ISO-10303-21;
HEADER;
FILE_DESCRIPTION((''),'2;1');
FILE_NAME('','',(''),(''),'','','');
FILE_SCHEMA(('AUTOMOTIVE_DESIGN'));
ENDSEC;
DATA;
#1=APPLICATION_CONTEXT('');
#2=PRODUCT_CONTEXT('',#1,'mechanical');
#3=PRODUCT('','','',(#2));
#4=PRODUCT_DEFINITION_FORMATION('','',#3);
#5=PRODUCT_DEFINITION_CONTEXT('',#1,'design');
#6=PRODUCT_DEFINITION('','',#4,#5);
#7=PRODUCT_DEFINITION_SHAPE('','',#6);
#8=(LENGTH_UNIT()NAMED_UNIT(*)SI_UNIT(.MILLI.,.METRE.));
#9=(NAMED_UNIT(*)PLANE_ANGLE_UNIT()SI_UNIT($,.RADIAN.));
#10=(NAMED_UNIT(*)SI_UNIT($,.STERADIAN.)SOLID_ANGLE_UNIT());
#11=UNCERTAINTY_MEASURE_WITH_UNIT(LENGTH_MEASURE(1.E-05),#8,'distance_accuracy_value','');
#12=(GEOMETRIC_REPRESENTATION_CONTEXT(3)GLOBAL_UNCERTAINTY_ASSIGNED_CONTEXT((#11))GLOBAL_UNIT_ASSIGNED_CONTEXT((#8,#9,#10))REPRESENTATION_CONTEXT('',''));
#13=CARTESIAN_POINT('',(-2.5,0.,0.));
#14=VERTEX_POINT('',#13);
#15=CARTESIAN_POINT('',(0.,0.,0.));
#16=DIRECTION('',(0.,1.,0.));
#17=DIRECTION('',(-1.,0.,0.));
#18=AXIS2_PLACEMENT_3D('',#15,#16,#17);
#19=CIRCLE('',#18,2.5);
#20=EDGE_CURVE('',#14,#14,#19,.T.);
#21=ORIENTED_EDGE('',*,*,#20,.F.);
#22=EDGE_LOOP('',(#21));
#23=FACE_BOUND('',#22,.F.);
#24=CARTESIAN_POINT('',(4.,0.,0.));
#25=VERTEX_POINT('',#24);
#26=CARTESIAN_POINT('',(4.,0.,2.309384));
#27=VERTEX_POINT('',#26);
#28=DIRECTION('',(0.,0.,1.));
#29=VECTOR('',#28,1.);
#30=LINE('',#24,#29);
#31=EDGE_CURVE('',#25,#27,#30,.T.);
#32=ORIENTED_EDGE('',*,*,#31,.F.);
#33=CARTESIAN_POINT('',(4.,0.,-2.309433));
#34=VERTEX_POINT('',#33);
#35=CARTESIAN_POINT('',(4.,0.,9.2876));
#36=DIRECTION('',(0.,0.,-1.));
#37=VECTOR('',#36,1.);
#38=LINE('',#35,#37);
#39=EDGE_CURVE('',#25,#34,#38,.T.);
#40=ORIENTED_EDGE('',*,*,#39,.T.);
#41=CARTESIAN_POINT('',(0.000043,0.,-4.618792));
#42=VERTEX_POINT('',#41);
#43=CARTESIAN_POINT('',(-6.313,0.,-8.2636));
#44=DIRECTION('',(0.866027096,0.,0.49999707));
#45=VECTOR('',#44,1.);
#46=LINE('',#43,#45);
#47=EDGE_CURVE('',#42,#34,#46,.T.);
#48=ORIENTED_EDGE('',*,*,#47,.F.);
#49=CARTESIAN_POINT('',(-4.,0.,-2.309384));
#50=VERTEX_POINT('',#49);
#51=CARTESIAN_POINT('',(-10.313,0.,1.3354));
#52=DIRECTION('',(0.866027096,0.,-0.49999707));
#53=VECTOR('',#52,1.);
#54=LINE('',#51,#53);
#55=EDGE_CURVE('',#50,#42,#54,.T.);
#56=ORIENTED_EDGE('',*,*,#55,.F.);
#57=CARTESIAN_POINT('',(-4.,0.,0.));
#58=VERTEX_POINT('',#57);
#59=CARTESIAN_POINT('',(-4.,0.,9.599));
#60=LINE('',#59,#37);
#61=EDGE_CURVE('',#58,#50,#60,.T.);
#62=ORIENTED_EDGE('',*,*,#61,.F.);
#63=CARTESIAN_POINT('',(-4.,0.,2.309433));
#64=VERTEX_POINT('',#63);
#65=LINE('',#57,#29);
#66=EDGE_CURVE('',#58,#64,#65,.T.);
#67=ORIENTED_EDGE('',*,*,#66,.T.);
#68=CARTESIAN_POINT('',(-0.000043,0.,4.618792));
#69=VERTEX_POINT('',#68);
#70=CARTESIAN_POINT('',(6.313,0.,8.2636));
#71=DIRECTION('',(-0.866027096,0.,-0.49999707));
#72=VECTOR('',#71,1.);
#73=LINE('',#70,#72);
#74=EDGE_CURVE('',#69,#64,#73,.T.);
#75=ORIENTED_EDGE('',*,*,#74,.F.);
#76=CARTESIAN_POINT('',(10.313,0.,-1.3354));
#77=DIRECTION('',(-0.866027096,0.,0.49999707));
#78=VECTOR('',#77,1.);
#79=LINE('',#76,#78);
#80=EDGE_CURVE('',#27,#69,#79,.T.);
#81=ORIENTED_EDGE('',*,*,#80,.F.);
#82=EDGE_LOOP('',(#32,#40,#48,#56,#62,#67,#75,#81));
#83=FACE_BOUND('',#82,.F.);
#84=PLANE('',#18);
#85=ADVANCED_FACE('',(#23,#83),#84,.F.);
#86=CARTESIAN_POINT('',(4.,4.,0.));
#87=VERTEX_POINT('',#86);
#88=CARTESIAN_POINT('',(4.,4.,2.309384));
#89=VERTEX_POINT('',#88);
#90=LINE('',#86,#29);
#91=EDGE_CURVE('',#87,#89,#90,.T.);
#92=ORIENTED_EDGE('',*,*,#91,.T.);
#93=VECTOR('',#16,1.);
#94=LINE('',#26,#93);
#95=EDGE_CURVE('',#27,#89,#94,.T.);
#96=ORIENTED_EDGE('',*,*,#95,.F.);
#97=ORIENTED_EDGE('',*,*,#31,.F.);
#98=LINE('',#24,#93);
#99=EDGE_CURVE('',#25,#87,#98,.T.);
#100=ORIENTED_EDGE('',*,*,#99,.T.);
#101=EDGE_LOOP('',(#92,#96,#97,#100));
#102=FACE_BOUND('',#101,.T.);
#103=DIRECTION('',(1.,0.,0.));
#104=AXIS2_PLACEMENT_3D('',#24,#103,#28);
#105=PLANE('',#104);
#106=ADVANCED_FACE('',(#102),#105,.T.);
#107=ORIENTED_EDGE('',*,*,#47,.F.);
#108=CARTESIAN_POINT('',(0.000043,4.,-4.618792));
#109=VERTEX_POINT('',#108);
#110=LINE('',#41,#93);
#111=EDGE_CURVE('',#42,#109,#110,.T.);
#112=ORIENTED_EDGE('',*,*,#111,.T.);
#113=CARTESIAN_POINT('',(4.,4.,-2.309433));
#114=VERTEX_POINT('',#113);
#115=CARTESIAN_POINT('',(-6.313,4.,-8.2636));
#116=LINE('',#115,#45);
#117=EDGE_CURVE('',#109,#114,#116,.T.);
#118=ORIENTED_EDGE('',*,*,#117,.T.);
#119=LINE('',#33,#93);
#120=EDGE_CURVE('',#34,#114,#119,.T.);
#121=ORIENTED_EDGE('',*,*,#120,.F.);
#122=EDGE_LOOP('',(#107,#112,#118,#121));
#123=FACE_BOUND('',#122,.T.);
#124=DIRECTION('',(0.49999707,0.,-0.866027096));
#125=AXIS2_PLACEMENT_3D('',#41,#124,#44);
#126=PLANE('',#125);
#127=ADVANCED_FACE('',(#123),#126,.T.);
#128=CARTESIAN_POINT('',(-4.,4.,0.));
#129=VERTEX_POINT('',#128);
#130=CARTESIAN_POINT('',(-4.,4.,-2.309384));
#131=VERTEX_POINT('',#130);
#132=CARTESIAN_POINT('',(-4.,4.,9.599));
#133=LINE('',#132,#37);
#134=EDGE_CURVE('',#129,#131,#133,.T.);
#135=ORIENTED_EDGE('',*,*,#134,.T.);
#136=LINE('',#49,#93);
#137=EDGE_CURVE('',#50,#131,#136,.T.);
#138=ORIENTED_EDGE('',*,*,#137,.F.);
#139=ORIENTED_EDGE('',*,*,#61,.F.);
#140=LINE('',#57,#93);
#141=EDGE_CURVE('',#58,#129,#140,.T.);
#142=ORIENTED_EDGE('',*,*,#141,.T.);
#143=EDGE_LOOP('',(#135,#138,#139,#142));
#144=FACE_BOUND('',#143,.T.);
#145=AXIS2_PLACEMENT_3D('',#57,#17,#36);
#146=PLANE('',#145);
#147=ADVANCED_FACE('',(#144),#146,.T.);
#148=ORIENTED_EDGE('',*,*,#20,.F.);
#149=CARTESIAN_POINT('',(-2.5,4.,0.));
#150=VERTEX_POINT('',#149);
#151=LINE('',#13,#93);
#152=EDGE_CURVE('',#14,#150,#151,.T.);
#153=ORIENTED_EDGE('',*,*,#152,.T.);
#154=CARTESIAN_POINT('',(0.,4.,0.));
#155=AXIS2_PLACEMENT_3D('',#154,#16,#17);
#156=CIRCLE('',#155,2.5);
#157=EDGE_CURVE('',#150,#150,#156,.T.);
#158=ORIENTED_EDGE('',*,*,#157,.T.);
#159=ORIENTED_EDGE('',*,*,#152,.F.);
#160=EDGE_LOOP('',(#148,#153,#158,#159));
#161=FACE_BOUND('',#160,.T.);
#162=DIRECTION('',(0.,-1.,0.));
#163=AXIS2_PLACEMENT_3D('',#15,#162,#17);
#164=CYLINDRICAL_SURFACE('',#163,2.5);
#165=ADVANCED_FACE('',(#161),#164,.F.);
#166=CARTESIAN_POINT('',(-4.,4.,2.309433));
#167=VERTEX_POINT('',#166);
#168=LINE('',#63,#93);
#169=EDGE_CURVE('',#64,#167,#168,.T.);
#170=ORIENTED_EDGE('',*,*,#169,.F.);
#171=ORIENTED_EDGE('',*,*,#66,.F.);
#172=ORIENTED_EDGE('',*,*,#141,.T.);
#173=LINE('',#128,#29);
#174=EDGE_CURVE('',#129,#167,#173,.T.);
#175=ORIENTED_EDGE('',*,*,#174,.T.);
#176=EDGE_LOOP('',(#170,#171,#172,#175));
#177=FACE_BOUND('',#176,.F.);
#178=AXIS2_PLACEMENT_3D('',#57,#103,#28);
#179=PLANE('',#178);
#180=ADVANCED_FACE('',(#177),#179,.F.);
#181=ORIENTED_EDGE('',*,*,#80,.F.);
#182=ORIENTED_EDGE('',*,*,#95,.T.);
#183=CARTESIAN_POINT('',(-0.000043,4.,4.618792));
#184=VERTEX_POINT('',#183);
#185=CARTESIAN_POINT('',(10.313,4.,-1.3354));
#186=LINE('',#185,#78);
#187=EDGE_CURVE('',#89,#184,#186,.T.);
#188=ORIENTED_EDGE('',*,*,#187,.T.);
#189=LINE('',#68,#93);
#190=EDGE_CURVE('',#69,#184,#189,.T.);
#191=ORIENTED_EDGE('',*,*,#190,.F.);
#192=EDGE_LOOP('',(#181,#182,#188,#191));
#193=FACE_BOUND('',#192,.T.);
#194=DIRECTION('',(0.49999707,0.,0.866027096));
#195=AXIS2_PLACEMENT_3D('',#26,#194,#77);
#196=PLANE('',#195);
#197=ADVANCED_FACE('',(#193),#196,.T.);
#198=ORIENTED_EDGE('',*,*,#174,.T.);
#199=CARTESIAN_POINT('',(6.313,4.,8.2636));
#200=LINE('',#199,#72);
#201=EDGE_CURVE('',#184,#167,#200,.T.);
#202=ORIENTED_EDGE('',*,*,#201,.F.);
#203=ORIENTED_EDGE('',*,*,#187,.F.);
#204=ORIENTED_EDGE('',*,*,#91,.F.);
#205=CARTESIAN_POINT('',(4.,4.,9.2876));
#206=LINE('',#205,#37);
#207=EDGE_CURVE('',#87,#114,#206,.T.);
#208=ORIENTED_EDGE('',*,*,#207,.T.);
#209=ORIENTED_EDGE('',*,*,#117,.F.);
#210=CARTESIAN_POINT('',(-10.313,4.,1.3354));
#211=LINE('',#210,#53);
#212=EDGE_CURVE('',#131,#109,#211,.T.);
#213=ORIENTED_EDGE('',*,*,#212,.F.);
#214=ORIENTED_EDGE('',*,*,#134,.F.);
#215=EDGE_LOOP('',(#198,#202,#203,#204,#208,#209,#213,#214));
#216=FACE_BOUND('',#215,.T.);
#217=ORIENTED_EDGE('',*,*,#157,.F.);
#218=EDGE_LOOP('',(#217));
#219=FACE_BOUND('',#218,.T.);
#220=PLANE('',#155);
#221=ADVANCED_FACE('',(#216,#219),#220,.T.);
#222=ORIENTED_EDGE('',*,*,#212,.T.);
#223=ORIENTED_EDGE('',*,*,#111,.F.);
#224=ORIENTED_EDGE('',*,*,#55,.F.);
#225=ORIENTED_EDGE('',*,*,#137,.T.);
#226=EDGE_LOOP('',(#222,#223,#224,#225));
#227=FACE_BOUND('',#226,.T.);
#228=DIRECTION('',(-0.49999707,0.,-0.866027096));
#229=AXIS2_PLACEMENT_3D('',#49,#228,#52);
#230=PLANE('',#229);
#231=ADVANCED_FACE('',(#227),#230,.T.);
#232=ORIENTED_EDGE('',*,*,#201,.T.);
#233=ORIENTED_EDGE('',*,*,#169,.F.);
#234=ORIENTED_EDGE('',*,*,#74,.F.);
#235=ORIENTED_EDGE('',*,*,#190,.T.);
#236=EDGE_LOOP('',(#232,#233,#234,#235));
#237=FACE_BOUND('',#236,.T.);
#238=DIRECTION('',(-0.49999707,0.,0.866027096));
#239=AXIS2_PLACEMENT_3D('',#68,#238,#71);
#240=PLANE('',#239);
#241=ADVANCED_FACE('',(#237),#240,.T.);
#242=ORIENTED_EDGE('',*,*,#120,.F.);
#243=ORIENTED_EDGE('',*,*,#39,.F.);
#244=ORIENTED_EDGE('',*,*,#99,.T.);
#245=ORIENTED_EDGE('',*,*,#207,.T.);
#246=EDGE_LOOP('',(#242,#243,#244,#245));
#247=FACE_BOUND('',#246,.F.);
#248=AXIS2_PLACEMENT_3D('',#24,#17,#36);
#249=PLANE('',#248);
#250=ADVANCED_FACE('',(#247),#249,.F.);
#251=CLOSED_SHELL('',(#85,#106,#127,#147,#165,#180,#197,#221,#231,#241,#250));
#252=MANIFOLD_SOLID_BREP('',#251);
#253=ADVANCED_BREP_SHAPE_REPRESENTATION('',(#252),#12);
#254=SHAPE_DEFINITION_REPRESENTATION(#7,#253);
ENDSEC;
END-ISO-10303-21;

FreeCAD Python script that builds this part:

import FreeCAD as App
import Part
import Sketcher
from FreeCAD import Vector
Q = App.Units.Quantity


def add_polygon(sketch, points):
    """Adds a closed chain of lines whose ends are joined by coincident constraints."""
    first, n = sketch.GeometryCount, len(points)
    for a, b in zip(points, points[1:] + points[:1]):
        sketch.addGeometry(Part.LineSegment(App.Vector(*a, 0), App.Vector(*b, 0)), False)
    for i in range(n):
        sketch.addConstraint(Sketcher.Constraint("Coincident", first + i, 2, first + (i + 1) % n, 1))

doc = App.newDocument("Part")
body = doc.addObject("PartDesign::Body", "Body")

sketch1 = body.newObject("Sketcher::SketchObject", "Sketch")
sketch1.AttachmentSupport = (doc.getObject("XZ_Plane"), [""])
sketch1.MapMode = "FlatFace"
add_polygon(sketch1, [(-4, -2.3), (-4, 2.3), (0, 4.6), (4, 2.3), (4, -2.3), (0, -4.6)])
sketch1.addGeometry(Part.Circle(Vector(0, 0, 0), Vector(0, 0, 1), 2.5), False)
sketch1.addConstraint([
    Sketcher.Constraint("Vertical", 0),
    Sketcher.Constraint("Vertical", 3),
    Sketcher.Constraint("Coincident", 6, 3, -1, 1),
    Sketcher.Constraint("Symmetric", 0, 2, 3, 2, -1, 1),
    Sketcher.Constraint("Symmetric", 1, 2, 4, 2, -1, 1),
    Sketcher.Constraint("PointOnObject", 1, 2, -2),
    Sketcher.Constraint("Parallel", 2, 5),
    Sketcher.Constraint("Horizontal", 0, 2, 2, 2),
    Sketcher.Constraint("Diameter", 6, Q("5 mm")),
    Sketcher.Constraint("Angle", 1, Q("29.9998 deg")),
    Sketcher.Constraint("DistanceX", 0, 2, -1, 1, Q("4 mm")),
    Sketcher.Constraint("DistanceY", 0, 1, 0, 2, Q("4.6188 mm")),
])
pad1 = body.newObject("PartDesign::Pad", "Pad")
pad1.Profile = sketch1
pad1.Length = 4
pad1.Reversed = True

doc.recompute()
